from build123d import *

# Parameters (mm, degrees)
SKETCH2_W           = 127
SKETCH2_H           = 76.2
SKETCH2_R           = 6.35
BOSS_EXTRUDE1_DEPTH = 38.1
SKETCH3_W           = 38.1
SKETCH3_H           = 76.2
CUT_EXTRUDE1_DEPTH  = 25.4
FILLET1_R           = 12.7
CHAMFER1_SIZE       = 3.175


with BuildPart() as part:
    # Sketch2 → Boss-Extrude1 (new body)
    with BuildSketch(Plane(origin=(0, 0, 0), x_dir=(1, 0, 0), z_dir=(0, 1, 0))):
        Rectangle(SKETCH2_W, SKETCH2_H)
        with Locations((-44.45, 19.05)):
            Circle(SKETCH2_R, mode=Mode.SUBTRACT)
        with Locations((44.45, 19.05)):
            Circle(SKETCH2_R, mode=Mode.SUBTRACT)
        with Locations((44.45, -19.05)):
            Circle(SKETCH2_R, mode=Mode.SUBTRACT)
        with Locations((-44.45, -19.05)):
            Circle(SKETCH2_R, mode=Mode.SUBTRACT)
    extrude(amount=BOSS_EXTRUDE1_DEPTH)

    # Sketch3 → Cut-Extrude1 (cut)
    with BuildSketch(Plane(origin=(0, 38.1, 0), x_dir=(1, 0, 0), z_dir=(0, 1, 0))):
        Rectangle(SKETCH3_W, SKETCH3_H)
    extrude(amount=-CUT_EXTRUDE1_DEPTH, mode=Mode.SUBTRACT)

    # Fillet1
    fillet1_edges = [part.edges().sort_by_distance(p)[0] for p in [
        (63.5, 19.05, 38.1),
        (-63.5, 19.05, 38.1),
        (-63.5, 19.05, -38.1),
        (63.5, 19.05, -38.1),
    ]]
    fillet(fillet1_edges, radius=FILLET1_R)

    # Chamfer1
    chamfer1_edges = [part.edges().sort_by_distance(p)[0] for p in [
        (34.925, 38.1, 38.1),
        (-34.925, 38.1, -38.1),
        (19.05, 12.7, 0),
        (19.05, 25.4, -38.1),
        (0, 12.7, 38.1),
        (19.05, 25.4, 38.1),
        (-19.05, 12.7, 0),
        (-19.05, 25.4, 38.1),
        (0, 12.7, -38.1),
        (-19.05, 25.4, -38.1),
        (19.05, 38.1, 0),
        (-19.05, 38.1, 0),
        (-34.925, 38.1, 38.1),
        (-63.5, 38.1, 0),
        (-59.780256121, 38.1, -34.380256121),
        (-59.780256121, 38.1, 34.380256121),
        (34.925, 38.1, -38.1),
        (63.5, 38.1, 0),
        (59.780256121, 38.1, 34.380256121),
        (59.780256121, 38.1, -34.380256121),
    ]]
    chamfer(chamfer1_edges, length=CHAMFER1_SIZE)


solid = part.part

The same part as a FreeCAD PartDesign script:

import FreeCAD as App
import Part
import Sketcher
Q = App.Units.Quantity


def edges_at(feature, points):
    """Names of the edges that pass closest to the given points."""
    edges = feature.Shape.Edges
    near = lambda p: min(range(len(edges)), key=lambda i: edges[i].distToShape(Part.Vertex(*p))[0])
    return sorted({f"Edge{near(p) + 1}" for p in points})


def add_polygon(sketch, points):
    """Adds a closed chain of lines whose ends are joined by coincident constraints."""
    first, n = sketch.GeometryCount, len(points)
    for a, b in zip(points, points[1:] + points[:1]):
        sketch.addGeometry(Part.LineSegment(App.Vector(*a, 0), App.Vector(*b, 0)), False)
    for i in range(n):
        sketch.addConstraint(Sketcher.Constraint("Coincident", first + i, 2, first + (i + 1) % n, 1))

doc = App.newDocument("Part")
params = doc.addObject("Spreadsheet::Sheet", "Params")
for row, (alias, value) in enumerate([
    ("sketch1_diameter", "0.5 in"),
    ("sketch1_width", "5 in"),
    ("sketch1_height", "3 in"),
    ("pad1_length", "1.5 in"),
    ("sketch2_height", "3 in"),
    ("sketch2_width", "1.5 in"),
    ("pocket1_length", "1 in"),
    ("fillet_radius", "0.5 in"),
    ("chamfer_size", "0.125 in"),
], start=1):
    params.set(f"A{row}", alias)
    params.set(f"B{row}", "=" + value)
    params.setAlias(f"B{row}", alias)

body = doc.addObject("PartDesign::Body", "Body")

sketch1 = body.newObject("Sketcher::SketchObject", "Sketch")
sketch1.AttachmentSupport = (doc.getObject("XZ_Plane"), [""])
sketch1.MapMode = "FlatFace"
add_polygon(sketch1, [(-63.5, -38.1), (-63.5, 38.1), (63.5, 38.1), (63.5, -38.1)])
sketch1.addGeometry(Part.Circle(App.Vector(-44.45, 19.05, 0), App.Vector(0, 0, 1), 6.35), False)
sketch1.addGeometry(Part.Circle(App.Vector(44.45, 19.05, 0), App.Vector(0, 0, 1), 6.35), False)
sketch1.addGeometry(Part.Circle(App.Vector(-44.45, -19.05, 0), App.Vector(0, 0, 1), 6.35), False)
sketch1.addGeometry(Part.Circle(App.Vector(44.45, -19.05, 0), App.Vector(0, 0, 1), 6.35), False)
sketch1.addConstraint([
    Sketcher.Constraint("Vertical", 0),
    Sketcher.Constraint("Horizontal", 1),
    Sketcher.Constraint("Vertical", 2),
    Sketcher.Constraint("Horizontal", 3),
    Sketcher.Constraint("Equal", 4, 5),
    Sketcher.Constraint("Equal", 5, 6),
    Sketcher.Constraint("Equal", 6, 7),
    Sketcher.Constraint("Symmetric", 5, 3, 6, 3, -1, 1),
    Sketcher.Constraint("Symmetric", 4, 3, 7, 3, -1, 1),
    Sketcher.Constraint("Symmetric", 0, 2, 2, 2, -1, 1),
    Sketcher.Constraint("Symmetric", 4, 3, 5, 3, -2),
    Sketcher.Constraint("Diameter", 4, Q("0.5 in")),
    Sketcher.Constraint("DistanceX", 1, 1, 1, 2, Q("5 in")),
    Sketcher.Constraint("DistanceY", 0, 1, 0, 2, Q("3 in")),
    Sketcher.Constraint("DistanceX", 4, 3, 5, 3, Q("3.5 in")),
    Sketcher.Constraint("DistanceY", 6, 3, 4, 3, Q("1.5 in")),
])
sketch1.setExpression("Constraints[15]", "Params.sketch1_diameter")
sketch1.setExpression("Constraints[16]", "Params.sketch1_width")
sketch1.setExpression("Constraints[17]", "Params.sketch1_height")
pad1 = body.newObject("PartDesign::Pad", "Pad")
pad1.Profile = sketch1
pad1.setExpression("Length", "Params.pad1_length")
pad1.Reversed = True

sketch2 = body.newObject("Sketcher::SketchObject", "Sketch001")
sketch2.AttachmentSupport = (doc.getObject("XZ_Plane"), [""])
sketch2.MapMode = "FlatFace"
sketch2.AttachmentOffset = App.Placement(App.Vector(0, 0, -1.5 * 25.4), App.Rotation())
add_polygon(sketch2, [(-19.05, -38.1), (-19.05, 38.1), (19.05, 38.1), (19.05, -38.1)])
sketch2.addConstraint([
    Sketcher.Constraint("Vertical", 0),
    Sketcher.Constraint("Horizontal", 1),
    Sketcher.Constraint("Vertical", 2),
    Sketcher.Constraint("Horizontal", 3),
    Sketcher.Constraint("Symmetric", 0, 2, 2, 2, -1, 1),
    Sketcher.Constraint("DistanceY", 0, 1, 0, 2, Q("3 in")),
    Sketcher.Constraint("DistanceX", 1, 1, 1, 2, Q("1.5 in")),
])
sketch2.setExpression("Constraints[9]", "Params.sketch2_height")
sketch2.setExpression("Constraints[10]", "Params.sketch2_width")
pocket1 = body.newObject("PartDesign::Pocket", "Pocket")
pocket1.Profile = sketch2
pocket1.setExpression("Length", "Params.pocket1_length")
pocket1.Reversed = True
doc.recompute()

fillet = body.newObject("PartDesign::Fillet", "Fillet")
fillet.Base = (pocket1, edges_at(pocket1, [
    (63.5, 19.05, 38.1),
    (-63.5, 19.05, 38.1),
    (-63.5, 19.05, -38.1),
    (63.5, 19.05, -38.1),
]))
fillet.setExpression("Radius", "Params.fillet_radius")
doc.recompute()

chamfer = body.newObject("PartDesign::Chamfer", "Chamfer")
chamfer.Base = (fillet, edges_at(fillet, [
    (34.925, 38.1, 38.1),
    (-34.925, 38.1, -38.1),
    (19.05, 12.7, 0),
    (19.05, 25.4, -38.1),
    (0, 12.7, 38.1),
    (19.05, 25.4, 38.1),
    (-19.05, 12.7, 0),
    (-19.05, 25.4, 38.1),
    (0, 12.7, -38.1),
    (-19.05, 25.4, -38.1),
    (19.05, 38.1, 0),
    (-19.05, 38.1, 0),
    (-34.925, 38.1, 38.1),
    (-63.5, 38.1, 0),
    (-59.78, 38.1, -34.38),
    (-59.78, 38.1, 34.38),
    (34.925, 38.1, -38.1),
    (63.5, 38.1, 0),
    (59.78, 38.1, 34.38),
    (59.78, 38.1, -34.38),
]))
chamfer.setExpression("Size", "Params.chamfer_size")

doc.recompute()
